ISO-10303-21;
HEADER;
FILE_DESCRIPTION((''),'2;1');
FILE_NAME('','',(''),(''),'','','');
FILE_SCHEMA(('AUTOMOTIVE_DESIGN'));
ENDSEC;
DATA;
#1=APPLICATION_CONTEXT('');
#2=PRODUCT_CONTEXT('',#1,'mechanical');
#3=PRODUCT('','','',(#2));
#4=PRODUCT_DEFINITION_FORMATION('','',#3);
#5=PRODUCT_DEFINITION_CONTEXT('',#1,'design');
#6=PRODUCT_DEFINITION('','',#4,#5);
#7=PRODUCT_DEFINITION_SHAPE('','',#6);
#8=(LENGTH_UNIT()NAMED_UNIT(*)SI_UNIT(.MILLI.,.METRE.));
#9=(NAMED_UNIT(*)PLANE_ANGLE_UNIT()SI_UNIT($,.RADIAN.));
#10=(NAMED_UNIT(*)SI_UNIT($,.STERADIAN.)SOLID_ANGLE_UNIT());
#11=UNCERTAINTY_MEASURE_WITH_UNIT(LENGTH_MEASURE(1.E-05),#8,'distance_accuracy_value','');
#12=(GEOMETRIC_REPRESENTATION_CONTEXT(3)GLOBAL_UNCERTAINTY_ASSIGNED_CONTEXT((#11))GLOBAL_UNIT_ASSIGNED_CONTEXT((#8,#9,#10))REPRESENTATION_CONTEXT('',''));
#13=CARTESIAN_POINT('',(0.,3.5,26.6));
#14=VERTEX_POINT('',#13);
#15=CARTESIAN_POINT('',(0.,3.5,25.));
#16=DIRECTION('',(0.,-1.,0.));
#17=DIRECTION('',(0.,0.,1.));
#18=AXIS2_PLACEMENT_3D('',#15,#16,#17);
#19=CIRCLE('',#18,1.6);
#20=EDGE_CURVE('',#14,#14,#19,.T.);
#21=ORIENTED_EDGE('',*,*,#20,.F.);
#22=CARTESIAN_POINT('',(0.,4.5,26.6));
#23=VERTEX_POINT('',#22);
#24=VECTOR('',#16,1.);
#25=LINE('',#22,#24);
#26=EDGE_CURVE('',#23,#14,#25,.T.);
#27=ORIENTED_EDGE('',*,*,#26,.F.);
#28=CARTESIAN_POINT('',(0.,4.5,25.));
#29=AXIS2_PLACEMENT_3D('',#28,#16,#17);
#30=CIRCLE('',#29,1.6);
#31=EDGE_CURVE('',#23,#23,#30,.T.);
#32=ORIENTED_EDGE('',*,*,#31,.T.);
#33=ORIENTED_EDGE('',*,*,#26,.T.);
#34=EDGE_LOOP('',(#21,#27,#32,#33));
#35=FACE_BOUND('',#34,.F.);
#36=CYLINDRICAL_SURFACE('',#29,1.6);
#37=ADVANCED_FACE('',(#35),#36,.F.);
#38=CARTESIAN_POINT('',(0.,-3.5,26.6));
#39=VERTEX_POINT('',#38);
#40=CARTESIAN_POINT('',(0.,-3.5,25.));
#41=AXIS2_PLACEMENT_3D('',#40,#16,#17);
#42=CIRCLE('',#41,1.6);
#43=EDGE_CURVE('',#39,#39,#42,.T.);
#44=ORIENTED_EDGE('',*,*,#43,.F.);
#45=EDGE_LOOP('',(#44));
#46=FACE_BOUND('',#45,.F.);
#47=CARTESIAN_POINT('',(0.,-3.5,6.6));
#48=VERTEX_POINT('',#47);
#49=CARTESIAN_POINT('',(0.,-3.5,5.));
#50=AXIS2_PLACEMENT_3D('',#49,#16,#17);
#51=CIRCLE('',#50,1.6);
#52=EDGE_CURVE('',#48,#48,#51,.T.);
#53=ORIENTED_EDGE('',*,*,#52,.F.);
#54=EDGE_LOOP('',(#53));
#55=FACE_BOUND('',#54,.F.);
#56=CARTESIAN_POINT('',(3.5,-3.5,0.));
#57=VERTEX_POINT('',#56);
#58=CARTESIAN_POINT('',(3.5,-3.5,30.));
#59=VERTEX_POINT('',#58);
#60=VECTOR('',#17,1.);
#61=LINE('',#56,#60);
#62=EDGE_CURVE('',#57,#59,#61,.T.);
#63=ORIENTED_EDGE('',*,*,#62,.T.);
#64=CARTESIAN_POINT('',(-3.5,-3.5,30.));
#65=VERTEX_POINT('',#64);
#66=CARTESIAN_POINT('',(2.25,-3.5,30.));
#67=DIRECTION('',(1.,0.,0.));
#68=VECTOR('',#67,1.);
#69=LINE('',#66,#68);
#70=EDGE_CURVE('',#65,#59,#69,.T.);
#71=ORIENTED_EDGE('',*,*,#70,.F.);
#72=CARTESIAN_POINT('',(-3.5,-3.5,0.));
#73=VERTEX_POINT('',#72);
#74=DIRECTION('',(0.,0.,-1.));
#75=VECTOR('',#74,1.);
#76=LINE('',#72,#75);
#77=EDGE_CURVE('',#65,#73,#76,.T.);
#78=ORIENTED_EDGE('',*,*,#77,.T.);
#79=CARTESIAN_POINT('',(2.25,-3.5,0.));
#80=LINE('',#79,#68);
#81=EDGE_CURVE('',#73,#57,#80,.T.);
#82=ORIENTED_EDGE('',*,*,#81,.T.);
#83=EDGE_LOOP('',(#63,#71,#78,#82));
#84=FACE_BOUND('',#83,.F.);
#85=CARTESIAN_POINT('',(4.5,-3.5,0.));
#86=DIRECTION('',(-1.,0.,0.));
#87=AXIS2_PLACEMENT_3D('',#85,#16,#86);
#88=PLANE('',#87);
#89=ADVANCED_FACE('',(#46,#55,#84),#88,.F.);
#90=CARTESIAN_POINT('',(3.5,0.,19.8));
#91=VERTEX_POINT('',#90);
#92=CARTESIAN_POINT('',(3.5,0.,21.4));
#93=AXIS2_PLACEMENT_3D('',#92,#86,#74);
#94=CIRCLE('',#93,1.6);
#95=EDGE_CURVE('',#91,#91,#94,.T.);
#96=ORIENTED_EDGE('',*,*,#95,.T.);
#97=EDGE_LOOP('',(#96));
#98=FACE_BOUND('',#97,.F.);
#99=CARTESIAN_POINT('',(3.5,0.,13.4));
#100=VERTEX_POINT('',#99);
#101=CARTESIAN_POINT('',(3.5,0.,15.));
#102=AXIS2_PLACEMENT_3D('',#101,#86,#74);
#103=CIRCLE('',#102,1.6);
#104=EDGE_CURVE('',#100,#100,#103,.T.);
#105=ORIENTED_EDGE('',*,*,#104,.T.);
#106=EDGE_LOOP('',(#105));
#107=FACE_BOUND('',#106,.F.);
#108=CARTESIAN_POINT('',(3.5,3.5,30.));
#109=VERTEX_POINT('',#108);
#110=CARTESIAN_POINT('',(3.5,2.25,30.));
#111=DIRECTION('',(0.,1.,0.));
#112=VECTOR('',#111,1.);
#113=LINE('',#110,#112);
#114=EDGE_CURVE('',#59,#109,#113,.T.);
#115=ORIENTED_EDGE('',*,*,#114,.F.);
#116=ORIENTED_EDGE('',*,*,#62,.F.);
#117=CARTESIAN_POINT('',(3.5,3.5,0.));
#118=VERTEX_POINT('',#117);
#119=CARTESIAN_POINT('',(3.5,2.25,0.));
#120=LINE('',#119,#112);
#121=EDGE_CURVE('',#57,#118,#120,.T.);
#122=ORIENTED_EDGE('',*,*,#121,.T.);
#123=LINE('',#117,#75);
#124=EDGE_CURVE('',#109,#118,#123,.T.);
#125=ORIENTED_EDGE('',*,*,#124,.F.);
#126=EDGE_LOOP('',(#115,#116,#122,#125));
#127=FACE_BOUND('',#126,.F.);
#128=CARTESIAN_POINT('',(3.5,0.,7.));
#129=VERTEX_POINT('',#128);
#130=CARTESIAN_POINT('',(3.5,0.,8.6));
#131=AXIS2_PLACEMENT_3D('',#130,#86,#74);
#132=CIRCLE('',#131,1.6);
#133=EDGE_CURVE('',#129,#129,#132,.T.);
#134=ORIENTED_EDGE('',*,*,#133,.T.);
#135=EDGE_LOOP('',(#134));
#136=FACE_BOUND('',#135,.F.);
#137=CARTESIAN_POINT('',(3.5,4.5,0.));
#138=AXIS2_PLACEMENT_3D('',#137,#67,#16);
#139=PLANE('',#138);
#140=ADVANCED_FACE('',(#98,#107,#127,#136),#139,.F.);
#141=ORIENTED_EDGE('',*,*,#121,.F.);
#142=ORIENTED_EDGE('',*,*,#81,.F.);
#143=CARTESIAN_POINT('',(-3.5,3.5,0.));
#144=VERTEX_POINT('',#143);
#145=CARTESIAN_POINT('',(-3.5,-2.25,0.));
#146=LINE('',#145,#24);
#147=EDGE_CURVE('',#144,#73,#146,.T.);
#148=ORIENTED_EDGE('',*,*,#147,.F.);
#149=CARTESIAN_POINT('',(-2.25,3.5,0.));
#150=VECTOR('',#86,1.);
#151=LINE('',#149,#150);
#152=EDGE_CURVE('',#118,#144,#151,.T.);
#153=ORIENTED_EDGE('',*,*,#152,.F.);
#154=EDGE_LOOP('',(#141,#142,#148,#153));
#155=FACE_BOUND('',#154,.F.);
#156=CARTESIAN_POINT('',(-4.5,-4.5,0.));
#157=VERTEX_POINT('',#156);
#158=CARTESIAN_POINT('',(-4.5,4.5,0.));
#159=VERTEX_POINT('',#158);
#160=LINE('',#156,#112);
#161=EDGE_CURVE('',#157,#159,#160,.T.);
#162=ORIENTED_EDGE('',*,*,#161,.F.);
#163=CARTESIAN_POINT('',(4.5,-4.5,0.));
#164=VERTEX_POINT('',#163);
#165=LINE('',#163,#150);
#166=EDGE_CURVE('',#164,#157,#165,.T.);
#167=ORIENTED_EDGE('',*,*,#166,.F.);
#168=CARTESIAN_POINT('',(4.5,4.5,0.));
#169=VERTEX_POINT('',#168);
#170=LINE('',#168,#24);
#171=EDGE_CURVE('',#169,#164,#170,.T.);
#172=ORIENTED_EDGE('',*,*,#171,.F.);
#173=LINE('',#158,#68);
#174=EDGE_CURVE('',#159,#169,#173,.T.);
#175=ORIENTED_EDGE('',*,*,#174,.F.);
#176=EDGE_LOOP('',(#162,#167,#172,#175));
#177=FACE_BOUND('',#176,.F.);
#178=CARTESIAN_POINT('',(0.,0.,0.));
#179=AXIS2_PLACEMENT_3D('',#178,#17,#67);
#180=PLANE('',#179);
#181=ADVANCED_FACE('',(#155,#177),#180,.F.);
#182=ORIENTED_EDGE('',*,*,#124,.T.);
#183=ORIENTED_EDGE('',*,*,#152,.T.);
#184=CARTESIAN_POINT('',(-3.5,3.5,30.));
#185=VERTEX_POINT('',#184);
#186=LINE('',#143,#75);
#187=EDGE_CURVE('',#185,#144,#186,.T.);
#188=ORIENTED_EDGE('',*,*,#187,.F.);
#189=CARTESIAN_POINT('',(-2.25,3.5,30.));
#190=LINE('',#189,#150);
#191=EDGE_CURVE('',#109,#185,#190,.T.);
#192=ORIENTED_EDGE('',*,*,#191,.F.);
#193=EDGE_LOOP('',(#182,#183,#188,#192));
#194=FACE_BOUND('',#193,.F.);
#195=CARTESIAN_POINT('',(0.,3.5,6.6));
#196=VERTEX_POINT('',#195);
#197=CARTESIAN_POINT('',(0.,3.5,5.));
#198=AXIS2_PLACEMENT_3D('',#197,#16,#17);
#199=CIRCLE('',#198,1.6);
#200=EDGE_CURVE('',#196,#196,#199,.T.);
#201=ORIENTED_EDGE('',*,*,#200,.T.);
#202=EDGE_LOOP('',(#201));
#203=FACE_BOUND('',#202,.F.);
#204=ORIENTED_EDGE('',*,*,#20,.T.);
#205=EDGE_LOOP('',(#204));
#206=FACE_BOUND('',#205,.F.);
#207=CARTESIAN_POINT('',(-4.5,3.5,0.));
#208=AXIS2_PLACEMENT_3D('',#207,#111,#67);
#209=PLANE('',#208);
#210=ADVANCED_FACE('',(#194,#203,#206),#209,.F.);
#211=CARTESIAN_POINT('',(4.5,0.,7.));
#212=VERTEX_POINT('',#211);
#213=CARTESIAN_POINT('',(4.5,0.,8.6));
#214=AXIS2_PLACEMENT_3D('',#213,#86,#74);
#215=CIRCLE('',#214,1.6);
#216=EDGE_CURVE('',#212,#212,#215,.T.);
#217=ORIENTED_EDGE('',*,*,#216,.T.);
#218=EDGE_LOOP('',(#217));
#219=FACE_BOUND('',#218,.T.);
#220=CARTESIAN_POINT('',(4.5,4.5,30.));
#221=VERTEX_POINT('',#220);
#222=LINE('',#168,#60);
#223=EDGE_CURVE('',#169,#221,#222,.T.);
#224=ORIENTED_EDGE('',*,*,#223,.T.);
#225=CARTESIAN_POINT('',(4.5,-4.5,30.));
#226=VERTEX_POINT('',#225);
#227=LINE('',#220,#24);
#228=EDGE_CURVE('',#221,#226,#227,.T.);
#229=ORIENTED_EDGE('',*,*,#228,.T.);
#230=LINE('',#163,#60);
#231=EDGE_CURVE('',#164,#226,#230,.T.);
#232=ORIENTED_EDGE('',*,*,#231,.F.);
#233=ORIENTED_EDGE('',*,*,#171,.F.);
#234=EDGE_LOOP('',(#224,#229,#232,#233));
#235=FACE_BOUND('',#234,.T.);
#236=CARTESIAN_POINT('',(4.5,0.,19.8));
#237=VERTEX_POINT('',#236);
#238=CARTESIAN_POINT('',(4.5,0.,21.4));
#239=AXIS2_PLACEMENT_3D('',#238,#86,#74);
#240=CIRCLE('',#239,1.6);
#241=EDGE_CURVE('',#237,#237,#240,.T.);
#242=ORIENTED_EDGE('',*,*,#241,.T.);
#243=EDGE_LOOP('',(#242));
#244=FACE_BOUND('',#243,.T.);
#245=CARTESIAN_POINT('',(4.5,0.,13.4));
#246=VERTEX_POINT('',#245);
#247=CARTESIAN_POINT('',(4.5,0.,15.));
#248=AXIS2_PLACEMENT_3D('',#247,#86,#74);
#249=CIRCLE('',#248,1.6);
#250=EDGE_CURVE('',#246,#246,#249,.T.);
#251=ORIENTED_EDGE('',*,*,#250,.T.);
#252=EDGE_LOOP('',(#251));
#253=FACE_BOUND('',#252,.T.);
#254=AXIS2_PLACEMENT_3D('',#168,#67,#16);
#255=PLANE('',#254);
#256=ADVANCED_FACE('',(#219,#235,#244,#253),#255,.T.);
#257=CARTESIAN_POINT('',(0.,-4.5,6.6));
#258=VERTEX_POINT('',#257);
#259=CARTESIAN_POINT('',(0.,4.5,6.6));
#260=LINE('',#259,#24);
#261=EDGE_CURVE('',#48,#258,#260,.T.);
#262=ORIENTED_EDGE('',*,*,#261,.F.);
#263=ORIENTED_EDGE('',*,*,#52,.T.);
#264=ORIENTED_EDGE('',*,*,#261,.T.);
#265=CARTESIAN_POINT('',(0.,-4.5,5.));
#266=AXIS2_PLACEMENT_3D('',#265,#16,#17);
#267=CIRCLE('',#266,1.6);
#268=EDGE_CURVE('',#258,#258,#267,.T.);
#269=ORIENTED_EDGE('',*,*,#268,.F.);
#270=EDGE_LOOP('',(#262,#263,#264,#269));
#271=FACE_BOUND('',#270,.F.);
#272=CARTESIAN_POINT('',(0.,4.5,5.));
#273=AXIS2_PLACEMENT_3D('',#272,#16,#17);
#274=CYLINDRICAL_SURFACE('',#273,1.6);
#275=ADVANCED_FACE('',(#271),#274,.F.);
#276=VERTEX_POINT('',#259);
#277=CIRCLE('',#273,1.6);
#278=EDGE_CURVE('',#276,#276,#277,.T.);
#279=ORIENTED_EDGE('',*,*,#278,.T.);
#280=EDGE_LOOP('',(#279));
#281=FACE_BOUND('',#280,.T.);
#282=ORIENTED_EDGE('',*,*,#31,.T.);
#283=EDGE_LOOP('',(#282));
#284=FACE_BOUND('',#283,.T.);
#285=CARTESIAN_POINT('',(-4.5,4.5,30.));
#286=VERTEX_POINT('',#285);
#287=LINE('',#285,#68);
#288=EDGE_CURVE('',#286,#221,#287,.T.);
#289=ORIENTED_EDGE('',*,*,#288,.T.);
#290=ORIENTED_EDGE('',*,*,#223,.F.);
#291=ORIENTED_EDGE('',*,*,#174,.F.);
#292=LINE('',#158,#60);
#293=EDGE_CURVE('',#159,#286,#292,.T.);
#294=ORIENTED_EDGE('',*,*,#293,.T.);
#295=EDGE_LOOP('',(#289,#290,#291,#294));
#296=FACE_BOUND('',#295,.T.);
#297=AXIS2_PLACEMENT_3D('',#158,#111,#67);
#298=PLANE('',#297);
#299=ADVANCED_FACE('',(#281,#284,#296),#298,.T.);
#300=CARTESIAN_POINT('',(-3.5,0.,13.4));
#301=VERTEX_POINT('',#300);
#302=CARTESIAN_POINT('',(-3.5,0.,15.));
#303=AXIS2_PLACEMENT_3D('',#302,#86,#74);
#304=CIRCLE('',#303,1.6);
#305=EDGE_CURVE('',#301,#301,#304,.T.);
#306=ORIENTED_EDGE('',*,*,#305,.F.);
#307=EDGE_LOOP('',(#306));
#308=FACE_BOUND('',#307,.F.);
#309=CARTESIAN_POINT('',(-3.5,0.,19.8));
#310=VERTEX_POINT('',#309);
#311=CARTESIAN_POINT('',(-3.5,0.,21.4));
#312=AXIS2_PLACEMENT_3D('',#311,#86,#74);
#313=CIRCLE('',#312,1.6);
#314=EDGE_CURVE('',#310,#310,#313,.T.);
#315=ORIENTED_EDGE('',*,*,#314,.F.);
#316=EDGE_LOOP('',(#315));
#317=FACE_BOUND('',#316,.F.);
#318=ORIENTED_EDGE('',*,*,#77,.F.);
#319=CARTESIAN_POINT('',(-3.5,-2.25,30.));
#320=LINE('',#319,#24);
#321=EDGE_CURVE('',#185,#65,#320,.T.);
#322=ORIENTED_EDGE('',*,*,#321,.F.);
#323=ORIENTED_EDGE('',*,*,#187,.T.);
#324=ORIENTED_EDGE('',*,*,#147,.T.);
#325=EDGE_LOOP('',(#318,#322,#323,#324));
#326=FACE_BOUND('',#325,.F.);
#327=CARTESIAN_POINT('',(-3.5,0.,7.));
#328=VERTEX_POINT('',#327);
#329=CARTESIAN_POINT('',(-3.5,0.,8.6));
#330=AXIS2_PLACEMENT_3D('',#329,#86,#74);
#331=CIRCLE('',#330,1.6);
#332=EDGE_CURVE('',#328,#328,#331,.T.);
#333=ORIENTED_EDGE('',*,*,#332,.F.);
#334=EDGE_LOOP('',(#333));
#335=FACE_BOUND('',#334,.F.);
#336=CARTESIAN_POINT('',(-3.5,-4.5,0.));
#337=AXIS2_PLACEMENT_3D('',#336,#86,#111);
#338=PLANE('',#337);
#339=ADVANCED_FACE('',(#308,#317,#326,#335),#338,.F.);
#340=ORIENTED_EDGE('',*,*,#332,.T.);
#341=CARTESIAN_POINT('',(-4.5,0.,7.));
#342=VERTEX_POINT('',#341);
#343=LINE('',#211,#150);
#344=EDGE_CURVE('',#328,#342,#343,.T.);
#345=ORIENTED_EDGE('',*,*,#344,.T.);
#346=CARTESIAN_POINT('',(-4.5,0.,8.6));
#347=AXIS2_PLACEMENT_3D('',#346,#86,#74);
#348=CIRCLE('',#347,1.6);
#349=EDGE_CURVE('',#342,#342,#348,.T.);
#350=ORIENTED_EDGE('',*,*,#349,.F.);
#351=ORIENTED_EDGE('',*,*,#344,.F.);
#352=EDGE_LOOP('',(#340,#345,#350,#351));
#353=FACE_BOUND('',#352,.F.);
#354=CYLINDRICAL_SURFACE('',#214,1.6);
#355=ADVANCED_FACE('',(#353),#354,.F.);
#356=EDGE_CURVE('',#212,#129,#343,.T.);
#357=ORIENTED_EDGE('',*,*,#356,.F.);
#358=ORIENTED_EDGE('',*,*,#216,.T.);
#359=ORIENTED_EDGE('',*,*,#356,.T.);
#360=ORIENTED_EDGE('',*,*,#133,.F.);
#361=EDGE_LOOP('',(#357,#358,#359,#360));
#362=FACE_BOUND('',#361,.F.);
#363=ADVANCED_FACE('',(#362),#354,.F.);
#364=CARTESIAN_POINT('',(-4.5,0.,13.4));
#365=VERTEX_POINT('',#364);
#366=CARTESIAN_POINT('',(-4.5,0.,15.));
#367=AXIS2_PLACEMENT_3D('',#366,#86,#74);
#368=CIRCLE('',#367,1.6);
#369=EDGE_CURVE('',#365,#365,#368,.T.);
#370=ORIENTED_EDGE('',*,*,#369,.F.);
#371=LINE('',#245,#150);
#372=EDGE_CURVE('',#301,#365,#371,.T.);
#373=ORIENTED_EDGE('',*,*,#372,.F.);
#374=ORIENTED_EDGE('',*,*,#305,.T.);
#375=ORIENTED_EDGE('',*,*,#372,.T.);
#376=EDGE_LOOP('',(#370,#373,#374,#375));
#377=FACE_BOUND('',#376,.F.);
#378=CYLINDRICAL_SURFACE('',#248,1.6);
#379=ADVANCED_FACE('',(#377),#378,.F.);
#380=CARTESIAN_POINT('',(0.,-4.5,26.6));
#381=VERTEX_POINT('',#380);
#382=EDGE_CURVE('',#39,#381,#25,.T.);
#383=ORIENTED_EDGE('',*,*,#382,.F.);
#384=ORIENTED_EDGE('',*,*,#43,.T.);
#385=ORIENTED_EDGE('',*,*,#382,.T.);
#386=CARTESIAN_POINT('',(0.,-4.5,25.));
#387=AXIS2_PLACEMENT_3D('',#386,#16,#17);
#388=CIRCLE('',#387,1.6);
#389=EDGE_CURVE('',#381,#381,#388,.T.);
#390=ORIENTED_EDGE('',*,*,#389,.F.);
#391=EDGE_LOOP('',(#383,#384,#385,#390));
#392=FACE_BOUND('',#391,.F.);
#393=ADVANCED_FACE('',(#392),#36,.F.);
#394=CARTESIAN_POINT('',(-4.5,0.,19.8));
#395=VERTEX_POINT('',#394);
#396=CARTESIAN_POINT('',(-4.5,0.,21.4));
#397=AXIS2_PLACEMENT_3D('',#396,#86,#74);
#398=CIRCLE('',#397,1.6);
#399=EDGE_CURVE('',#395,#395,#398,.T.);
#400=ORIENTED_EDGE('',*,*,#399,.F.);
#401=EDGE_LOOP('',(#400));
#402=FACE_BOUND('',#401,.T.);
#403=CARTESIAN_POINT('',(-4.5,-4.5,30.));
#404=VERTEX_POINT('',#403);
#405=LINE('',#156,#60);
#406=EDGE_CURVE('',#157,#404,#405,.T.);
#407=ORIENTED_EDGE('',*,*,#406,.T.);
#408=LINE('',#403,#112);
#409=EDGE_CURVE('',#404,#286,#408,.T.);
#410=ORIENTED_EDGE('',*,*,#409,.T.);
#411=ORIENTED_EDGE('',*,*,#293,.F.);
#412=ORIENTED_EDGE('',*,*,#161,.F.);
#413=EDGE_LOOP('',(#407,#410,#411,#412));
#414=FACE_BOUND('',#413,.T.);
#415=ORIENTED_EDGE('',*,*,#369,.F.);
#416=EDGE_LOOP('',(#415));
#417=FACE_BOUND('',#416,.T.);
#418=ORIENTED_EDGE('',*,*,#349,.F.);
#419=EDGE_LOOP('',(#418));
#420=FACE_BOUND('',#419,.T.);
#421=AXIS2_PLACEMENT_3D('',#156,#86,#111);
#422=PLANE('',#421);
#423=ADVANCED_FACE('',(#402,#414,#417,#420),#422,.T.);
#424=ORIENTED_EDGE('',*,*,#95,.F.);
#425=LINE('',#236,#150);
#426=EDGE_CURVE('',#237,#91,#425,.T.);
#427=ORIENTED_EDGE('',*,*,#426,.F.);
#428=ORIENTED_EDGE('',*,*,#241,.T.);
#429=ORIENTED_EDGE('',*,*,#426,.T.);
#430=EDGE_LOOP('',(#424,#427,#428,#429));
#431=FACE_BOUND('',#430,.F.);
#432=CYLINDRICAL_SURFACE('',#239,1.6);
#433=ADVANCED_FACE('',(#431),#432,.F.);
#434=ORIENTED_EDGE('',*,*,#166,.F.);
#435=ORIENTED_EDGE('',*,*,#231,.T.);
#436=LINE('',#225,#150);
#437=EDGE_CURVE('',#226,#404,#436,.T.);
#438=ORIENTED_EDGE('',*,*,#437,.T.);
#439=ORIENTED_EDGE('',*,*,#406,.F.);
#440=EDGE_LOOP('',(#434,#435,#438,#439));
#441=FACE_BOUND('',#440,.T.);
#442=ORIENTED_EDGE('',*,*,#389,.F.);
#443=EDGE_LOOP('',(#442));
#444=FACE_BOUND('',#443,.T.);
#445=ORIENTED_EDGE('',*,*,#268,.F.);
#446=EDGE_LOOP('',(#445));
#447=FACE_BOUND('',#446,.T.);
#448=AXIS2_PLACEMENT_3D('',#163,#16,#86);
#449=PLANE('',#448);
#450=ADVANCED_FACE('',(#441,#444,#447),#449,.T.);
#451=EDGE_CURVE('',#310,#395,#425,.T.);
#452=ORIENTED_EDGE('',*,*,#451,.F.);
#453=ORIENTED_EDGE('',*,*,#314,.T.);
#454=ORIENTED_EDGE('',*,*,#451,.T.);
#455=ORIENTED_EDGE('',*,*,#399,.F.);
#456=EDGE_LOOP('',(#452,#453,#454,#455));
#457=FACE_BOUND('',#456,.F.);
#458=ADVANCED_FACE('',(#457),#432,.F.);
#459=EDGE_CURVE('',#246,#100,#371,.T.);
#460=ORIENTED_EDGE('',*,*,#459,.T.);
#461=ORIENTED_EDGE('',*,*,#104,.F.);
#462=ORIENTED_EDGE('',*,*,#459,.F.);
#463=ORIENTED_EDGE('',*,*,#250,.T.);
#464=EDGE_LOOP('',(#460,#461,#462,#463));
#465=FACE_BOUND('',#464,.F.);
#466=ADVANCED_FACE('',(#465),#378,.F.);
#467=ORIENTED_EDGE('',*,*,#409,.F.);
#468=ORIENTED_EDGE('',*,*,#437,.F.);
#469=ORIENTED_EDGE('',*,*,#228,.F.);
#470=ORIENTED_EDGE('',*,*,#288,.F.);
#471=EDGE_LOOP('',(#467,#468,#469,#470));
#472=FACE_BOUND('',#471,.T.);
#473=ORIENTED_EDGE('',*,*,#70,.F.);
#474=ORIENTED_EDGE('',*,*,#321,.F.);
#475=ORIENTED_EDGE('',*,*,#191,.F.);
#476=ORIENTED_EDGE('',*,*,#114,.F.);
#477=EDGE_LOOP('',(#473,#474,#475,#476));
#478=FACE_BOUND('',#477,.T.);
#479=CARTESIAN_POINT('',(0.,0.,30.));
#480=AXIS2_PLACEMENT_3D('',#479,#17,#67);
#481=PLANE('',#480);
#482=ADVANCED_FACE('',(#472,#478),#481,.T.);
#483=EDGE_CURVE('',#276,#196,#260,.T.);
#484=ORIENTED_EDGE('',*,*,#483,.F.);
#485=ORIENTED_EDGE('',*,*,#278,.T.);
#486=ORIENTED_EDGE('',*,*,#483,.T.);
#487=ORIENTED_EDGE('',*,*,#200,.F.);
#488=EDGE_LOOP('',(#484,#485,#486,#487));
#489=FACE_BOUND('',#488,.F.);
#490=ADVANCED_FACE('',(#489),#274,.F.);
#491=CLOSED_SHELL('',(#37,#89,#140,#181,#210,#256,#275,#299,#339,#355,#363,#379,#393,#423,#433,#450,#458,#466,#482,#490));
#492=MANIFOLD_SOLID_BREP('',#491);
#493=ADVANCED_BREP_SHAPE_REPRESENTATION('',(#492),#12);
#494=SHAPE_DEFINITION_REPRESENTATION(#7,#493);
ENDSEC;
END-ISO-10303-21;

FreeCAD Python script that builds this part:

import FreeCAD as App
import Part
import Sketcher
from FreeCAD import Vector
Q = App.Units.Quantity


def faces_at(feature, points):
    """Names of the faces that lie closest to the given points."""
    faces = feature.Shape.Faces
    near = lambda p: min(range(len(faces)), key=lambda i: faces[i].distToShape(Part.Vertex(*p))[0])
    return sorted({f"Face{near(p) + 1}" for p in points})

doc = App.newDocument("Part")
body = doc.addObject("PartDesign::Body", "Body")

# Sketch on XY plane
sketch1 = body.newObject("Sketcher::SketchObject", "Sketch")
sketch1.AttachmentSupport = (doc.getObject("XY_Plane"), [""])
sketch1.MapMode = "FlatFace"
sketch1.addGeometry([
    Part.LineSegment(Vector(-4.5, -4.5, 0), Vector(4.5, -4.5, 0)),
    Part.LineSegment(Vector(4.5, -4.5, 0), Vector(4.5, 4.5, 0)),
    Part.LineSegment(Vector(4.5, 4.5, 0), Vector(-4.5, 4.5, 0)),
    Part.LineSegment(Vector(-4.5, 4.5, 0), Vector(-4.5, -4.5, 0)),
], False)
sketch1.addConstraint([
    Sketcher.Constraint("Coincident", 0, 2, 1, 1),
    Sketcher.Constraint("Coincident", 1, 2, 2, 1),
    Sketcher.Constraint("Coincident", 2, 2, 3, 1),
    Sketcher.Constraint("Coincident", 3, 2, 0, 1),
    Sketcher.Constraint("Horizontal", 0),
    Sketcher.Constraint("Vertical", 1),
    Sketcher.Constraint("Horizontal", 2),
    Sketcher.Constraint("Vertical", 3),
    Sketcher.Constraint("Symmetric", 0, 2, 2, 2, -1, 1),
    Sketcher.Constraint("Equal", 2, 1),
    Sketcher.Constraint("DistanceX", 0, 1, 0, 2, Q("9 mm")),
])
pad1 = body.newObject("PartDesign::Pad", "Pad")
pad1.Profile = sketch1
pad1.Length = 30
doc.recompute()

thickness = body.newObject("PartDesign::Thickness", "Thickness")
thickness.Base = (pad1, faces_at(pad1, [(1.5, -1.5, 0), (1.5, -1.5, 30)]))
thickness.Value = 1
thickness.Reversed = True
thickness.Join = "Intersection"

# Sketch on XZ plane
sketch2 = body.newObject("Sketcher::SketchObject", "Sketch001")
sketch2.AttachmentSupport = (doc.getObject("XZ_Plane"), [""])
sketch2.MapMode = "FlatFace"
sketch2.AttachmentOffset = App.Placement(Vector(0, 0, -4.5), App.Rotation())
sketch2.addGeometry([
    Part.Circle(Vector(0, 5, 0), Vector(0, 0, 1), 1.6),
    Part.Circle(Vector(0, 25, 0), Vector(0, 0, 1), 1.6),
], False)
sketch2.addConstraint([
    Sketcher.Constraint("Equal", 0, 1),
    Sketcher.Constraint("PointOnObject", 0, 3, -2),
    Sketcher.Constraint("PointOnObject", 1, 3, -2),
    Sketcher.Constraint("Diameter", 0, Q("3.2 mm")),
    Sketcher.Constraint("DistanceY", -1, 1, 0, 3, Q("5 mm")),
    Sketcher.Constraint("DistanceY", -1, 1, 1, 3, Q("25 mm")),
])
doc.recompute()
hole = body.newObject("PartDesign::Hole", "Hole")
hole.Profile = sketch2
hole.ThreadType = "None"
hole.Diameter = 3.2
hole.DepthType = "ThroughAll"
hole.Reversed = True

# Sketch on YZ plane
sketch3 = body.newObject("Sketcher::SketchObject", "Sketch002")
sketch3.AttachmentSupport = (doc.getObject("YZ_Plane"), [""])
sketch3.MapMode = "FlatFace"
sketch3.AttachmentOffset = App.Placement(Vector(0, 0, 4.5), App.Rotation())
sketch3.addGeometry([
    Part.Circle(Vector(0, 15, 0), Vector(0, 0, 1), 1.6),
    Part.Circle(Vector(0, 8.6, 0), Vector(0, 0, 1), 1.6),
    Part.Circle(Vector(0, 21.4, 0), Vector(0, 0, 1), 1.6),
], False)
sketch3.addConstraint([
    Sketcher.Constraint("Equal", 0, 1),
    Sketcher.Constraint("Equal", 1, 2),
    Sketcher.Constraint("PointOnObject", 0, 3, -2),
    Sketcher.Constraint("PointOnObject", 1, 3, -2),
    Sketcher.Constraint("PointOnObject", 2, 3, -2),
    Sketcher.Constraint("Diameter", 0, Q("3.2 mm")),
    Sketcher.Constraint("DistanceY", -1, 1, 0, 3, Q("15 mm")),
    Sketcher.Constraint("DistanceY", -1, 1, 1, 3, Q("8.6 mm")),
    Sketcher.Constraint("DistanceY", -1, 1, 2, 3, Q("21.4 mm")),
])
doc.recompute()
hole2 = body.newObject("PartDesign::Hole", "Hole001")
hole2.Profile = sketch3
hole2.ThreadType = "None"
hole2.Diameter = 3.2
hole2.DepthType = "ThroughAll"

doc.recompute()
